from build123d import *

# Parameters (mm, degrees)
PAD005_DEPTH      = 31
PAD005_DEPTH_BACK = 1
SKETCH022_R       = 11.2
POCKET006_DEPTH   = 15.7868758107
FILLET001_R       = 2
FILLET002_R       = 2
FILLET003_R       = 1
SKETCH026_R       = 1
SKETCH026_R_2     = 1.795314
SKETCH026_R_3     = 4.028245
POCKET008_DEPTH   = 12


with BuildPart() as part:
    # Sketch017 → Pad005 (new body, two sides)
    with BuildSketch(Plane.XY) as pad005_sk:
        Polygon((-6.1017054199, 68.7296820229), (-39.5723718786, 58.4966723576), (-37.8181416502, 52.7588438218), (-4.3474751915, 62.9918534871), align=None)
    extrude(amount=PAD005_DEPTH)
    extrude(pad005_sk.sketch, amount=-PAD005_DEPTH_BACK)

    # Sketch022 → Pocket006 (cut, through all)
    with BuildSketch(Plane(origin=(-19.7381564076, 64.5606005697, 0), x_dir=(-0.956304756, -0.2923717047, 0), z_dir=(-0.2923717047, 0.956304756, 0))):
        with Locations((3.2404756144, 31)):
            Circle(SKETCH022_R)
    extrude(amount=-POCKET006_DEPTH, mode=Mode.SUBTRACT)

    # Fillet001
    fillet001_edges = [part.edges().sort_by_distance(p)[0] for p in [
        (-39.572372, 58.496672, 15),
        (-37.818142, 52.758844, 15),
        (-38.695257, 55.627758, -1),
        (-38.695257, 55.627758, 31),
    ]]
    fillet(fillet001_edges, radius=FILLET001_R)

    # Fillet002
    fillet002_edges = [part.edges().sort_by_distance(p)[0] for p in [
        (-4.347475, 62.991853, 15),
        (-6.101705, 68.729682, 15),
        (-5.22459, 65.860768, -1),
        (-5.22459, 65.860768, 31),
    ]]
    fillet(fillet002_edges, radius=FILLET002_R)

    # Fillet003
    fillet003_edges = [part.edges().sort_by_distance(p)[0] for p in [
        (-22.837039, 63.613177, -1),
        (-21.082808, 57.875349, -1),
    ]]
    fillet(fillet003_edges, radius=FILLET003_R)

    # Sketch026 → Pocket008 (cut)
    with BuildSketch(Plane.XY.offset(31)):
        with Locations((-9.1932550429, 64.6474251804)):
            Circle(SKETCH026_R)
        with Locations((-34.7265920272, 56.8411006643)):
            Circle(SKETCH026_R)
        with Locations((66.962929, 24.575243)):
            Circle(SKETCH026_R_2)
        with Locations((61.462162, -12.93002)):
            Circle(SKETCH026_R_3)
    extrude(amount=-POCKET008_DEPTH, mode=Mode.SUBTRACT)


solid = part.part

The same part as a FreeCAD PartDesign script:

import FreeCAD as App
import Part
import Sketcher
from FreeCAD import Vector
Q = App.Units.Quantity


def edges_at(feature, points):
    """Names of the edges that pass closest to the given points."""
    edges = feature.Shape.Edges
    near = lambda p: min(range(len(edges)), key=lambda i: edges[i].distToShape(Part.Vertex(*p))[0])
    return sorted({f"Edge{near(p) + 1}" for p in points})

doc = App.newDocument("Part")
params = doc.addObject("Spreadsheet::Sheet", "Params")
for row, (alias, value) in enumerate([
    ("sketch1_length", "35 mm"),
    ("sketch1_length2", "6 mm"),
    ("pad1_length", "31 mm"),
    ("pad1_length2", "1 mm"),
    ("sketch2_diameter", "22.4 mm"),
    ("fillet_radius", "2 mm"),
    ("fillet2_radius", "2 mm"),
    ("fillet3_radius", "1 mm"),
    ("sketch3_diameter", "2 mm"),
    ("pocket2_length", "12 mm"),
], start=1):
    params.set(f"A{row}", alias)
    params.set(f"B{row}", "=" + value)
    params.setAlias(f"B{row}", alias)

body = doc.addObject("PartDesign::Body", "Body")

# Sketch on XY plane
sketch1 = body.newObject("Sketcher::SketchObject", "Sketch")
sketch1.AttachmentSupport = (doc.getObject("XY_Plane"), [""])
sketch1.MapMode = "FlatFace"
sketch1.addGeometry([
    Part.LineSegment(Vector(-6, 69, 0), Vector(-40, 58, 0)),
    Part.LineSegment(Vector(-40, 58, 0), Vector(-38, 53, 0)),
    Part.LineSegment(Vector(-38, 53, 0), Vector(-4, 63, 0)),
    Part.LineSegment(Vector(-4, 63, 0), Vector(-6, 69, 0)),
], False)
sketch1.addConstraint([
    Sketcher.Constraint("Coincident", 0, 2, 1, 1),
    Sketcher.Constraint("Coincident", 1, 2, 2, 1),
    Sketcher.Constraint("Coincident", 2, 2, 3, 1),
    Sketcher.Constraint("Coincident", 3, 2, 0, 1),
    Sketcher.Constraint("Perpendicular", 0, 1),
    Sketcher.Constraint("Perpendicular", 1, 2),
    Sketcher.Constraint("Perpendicular", 2, 3),
    Sketcher.Constraint("Angle", 0, Q("-163 deg")),
    Sketcher.Constraint("Distance", 0, 35.0),
    Sketcher.Constraint("Distance", 1, 6.0),
    Sketcher.Constraint("DistanceX", 0, 2, -1, 1, 39.572372),
    Sketcher.Constraint("DistanceY", -1, 1, 0, 2, 58.496672),
])
sketch1.setExpression("Constraints[8]", "Params.sketch1_length")
sketch1.setExpression("Constraints[9]", "Params.sketch1_length2")
pad1 = body.newObject("PartDesign::Pad", "Pad")
pad1.Profile = sketch1
pad1.Type = "TwoLengths"
pad1.setExpression("Length", "Params.pad1_length")
pad1.setExpression("Length2", "Params.pad1_length2")

# Sketch on an angled plane
sketch2 = body.newObject("Sketcher::SketchObject", "Sketch001")
sketch2.Placement = App.Placement(Vector(-19.738156, 64.560601, 0), App.Rotation(Vector(-0.956304756, -0.292371705, 0), Vector(0, 0, 1), Vector(-0.292371705, 0.956304756, 0), "ZXY"))
sketch2.addGeometry(Part.Circle(Vector(3, 31, 0), Vector(0, 0, 1), 11), False)
sketch2.addConstraint([
    Sketcher.Constraint("Diameter", 0, 22.4),
    Sketcher.Constraint("DistanceY", -1, 1, 0, 3, 31.0),
    Sketcher.Constraint("DistanceX", -1, 1, 0, 3, 3.240476),
])
sketch2.setExpression("Constraints[0]", "Params.sketch2_diameter")
pocket1 = body.newObject("PartDesign::Pocket", "Pocket")
pocket1.Profile = sketch2
pocket1.Type = "ThroughAll"
doc.recompute()

fillet = body.newObject("PartDesign::Fillet", "Fillet")
fillet.Base = (pocket1, edges_at(pocket1, [
    (-39.572, 58.497, 15),
    (-37.818, 52.759, 15),
    (-38.695, 55.628, -1),
    (-38.695, 55.628, 31),
]))
fillet.setExpression("Radius", "Params.fillet_radius")
doc.recompute()

fillet2 = body.newObject("PartDesign::Fillet", "Fillet001")
fillet2.Base = (fillet, edges_at(fillet, [
    (-4.347, 62.992, 15),
    (-6.102, 68.73, 15),
    (-5.225, 65.861, -1),
    (-5.225, 65.861, 31),
]))
fillet2.setExpression("Radius", "Params.fillet2_radius")
doc.recompute()

fillet3 = body.newObject("PartDesign::Fillet", "Fillet002")
fillet3.Base = (fillet2, edges_at(fillet2, [(-22.837, 63.613, -1), (-21.083, 57.875, -1)]))
fillet3.setExpression("Radius", "Params.fillet3_radius")

# Sketch on XY plane
sketch3 = body.newObject("Sketcher::SketchObject", "Sketch002")
sketch3.AttachmentSupport = (doc.getObject("XY_Plane"), [""])
sketch3.MapMode = "FlatFace"
sketch3.AttachmentOffset = App.Placement(Vector(0, 0, 31), App.Rotation())
sketch3.addGeometry([
    Part.Circle(Vector(-9.2, 64.6, 0), Vector(0, 0, 1), 1),
    Part.Circle(Vector(-34.7, 56.8, 0), Vector(0, 0, 1), 1),
    Part.Circle(Vector(67, 24.6, 0), Vector(0, 0, 1), 1.8),
    Part.Circle(Vector(61.5, -12.9, 0), Vector(0, 0, 1), 4),
], False)
sketch3.addConstraint([
    Sketcher.Constraint("Equal", 0, 1),
    Sketcher.Constraint("Diameter", 0, 2.0),
    Sketcher.Constraint("Diameter", 2, 3.590628),
    Sketcher.Constraint("Diameter", 3, 8.05649),
    Sketcher.Constraint("DistanceY", -1, 1, 1, 3, 56.841101),
    Sketcher.Constraint("DistanceX", -1, 1, 2, 3, 66.962929),
    Sketcher.Constraint("DistanceY", 3, 3, -1, 1, 12.93002),
    Sketcher.Constraint("DistanceX", 1, 3, 2, 3, 101.689521),
    Sketcher.Constraint("DistanceX", 0, 3, -1, 1, 9.193255),
    Sketcher.Constraint("DistanceY", -1, 1, 0, 3, 64.647425),
    Sketcher.Constraint("DistanceY", -1, 1, 2, 3, 24.575243),
    Sketcher.Constraint("DistanceX", -1, 1, 3, 3, 61.462162),
])
sketch3.setExpression("Constraints[1]", "Params.sketch3_diameter")
pocket2 = body.newObject("PartDesign::Pocket", "Pocket001")
pocket2.Profile = sketch3
pocket2.setExpression("Length", "Params.pocket2_length")

doc.recompute()
